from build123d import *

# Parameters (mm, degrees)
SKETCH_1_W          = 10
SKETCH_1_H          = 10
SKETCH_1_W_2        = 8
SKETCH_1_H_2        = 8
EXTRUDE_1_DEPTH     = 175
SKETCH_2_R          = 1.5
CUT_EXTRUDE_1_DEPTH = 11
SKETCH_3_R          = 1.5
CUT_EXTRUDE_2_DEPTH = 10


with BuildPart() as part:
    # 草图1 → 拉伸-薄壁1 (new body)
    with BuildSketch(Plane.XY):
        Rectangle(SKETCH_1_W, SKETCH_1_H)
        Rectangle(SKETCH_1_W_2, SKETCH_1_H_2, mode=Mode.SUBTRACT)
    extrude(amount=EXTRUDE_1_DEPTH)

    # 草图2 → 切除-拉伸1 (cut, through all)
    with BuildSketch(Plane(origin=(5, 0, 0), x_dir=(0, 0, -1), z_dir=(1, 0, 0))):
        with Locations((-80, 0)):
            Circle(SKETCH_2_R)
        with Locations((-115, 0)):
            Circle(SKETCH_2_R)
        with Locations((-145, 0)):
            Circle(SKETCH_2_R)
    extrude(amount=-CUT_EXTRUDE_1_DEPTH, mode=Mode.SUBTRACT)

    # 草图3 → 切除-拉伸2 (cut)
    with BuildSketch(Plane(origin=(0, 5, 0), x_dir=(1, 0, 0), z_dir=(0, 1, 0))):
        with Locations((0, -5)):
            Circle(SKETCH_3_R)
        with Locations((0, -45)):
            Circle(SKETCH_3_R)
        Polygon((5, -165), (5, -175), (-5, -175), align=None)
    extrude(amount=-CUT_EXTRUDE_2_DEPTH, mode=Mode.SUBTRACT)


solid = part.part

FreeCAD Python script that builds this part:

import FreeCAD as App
import Part
import Sketcher
from FreeCAD import Vector
Q = App.Units.Quantity


def add_polygon(sketch, points):
    """Adds a closed chain of lines whose ends are joined by coincident constraints."""
    first, n = sketch.GeometryCount, len(points)
    for a, b in zip(points, points[1:] + points[:1]):
        sketch.addGeometry(Part.LineSegment(App.Vector(*a, 0), App.Vector(*b, 0)), False)
    for i in range(n):
        sketch.addConstraint(Sketcher.Constraint("Coincident", first + i, 2, first + (i + 1) % n, 1))

doc = App.newDocument("Part")
body = doc.addObject("PartDesign::Body", "Body")

# Sketch on XY plane
sketch1 = body.newObject("Sketcher::SketchObject", "Sketch")
sketch1.AttachmentSupport = (doc.getObject("XY_Plane"), [""])
sketch1.MapMode = "FlatFace"
add_polygon(sketch1, [(-5, 5), (-5, -5), (5, -5), (5, 5)])  # lines 0-3
add_polygon(sketch1, [(4, -4), (-4, -4), (-4, 4), (4, 4)])  # lines 4-7
sketch1.addConstraint([
    Sketcher.Constraint("Vertical", 0),
    Sketcher.Constraint("Horizontal", 1),
    Sketcher.Constraint("Vertical", 2),
    Sketcher.Constraint("Horizontal", 3),
    Sketcher.Constraint("Horizontal", 4),
    Sketcher.Constraint("Vertical", 5),
    Sketcher.Constraint("Horizontal", 6),
    Sketcher.Constraint("Vertical", 7),
    Sketcher.Constraint("Symmetric", 0, 2, 2, 2, -1, 1),
    Sketcher.Constraint("Symmetric", 4, 2, 6, 2, -1, 1),
    Sketcher.Constraint("Equal", 3, 0),
    Sketcher.Constraint("Equal", 6, 5),
    Sketcher.Constraint("DistanceX", 1, 1, 1, 2, Q("10 mm")),
    Sketcher.Constraint("DistanceX", 4, 2, 4, 1, Q("8 mm")),
])
pad1 = body.newObject("PartDesign::Pad", "Pad")
pad1.Profile = sketch1
pad1.Length = 175

# Sketch on YZ plane
sketch2 = body.newObject("Sketcher::SketchObject", "Sketch001")
sketch2.AttachmentSupport = (doc.getObject("YZ_Plane"), [""])
sketch2.MapMode = "FlatFace"
sketch2.AttachmentOffset = App.Placement(Vector(0, 0, 5), App.Rotation())
sketch2.addGeometry([
    Part.Circle(Vector(0, 80, 0), Vector(0, 0, 1), 1.5),
    Part.Circle(Vector(0, 115, 0), Vector(0, 0, 1), 1.5),
    Part.Circle(Vector(0, 145, 0), Vector(0, 0, 1), 1.5),
], False)
sketch2.addConstraint([
    Sketcher.Constraint("Equal", 0, 1),
    Sketcher.Constraint("Equal", 1, 2),
    Sketcher.Constraint("PointOnObject", 0, 3, -2),
    Sketcher.Constraint("PointOnObject", 1, 3, -2),
    Sketcher.Constraint("PointOnObject", 2, 3, -2),
    Sketcher.Constraint("Diameter", 0, Q("3 mm")),
    Sketcher.Constraint("DistanceY", -1, 1, 0, 3, Q("80 mm")),
    Sketcher.Constraint("DistanceY", -1, 1, 1, 3, Q("115 mm")),
    Sketcher.Constraint("DistanceY", -1, 1, 2, 3, Q("145 mm")),
])
pocket1 = body.newObject("PartDesign::Pocket", "Pocket")
pocket1.Profile = sketch2
pocket1.Type = "ThroughAll"

# Sketch on XZ plane
sketch3 = body.newObject("Sketcher::SketchObject", "Sketch002")
sketch3.AttachmentSupport = (doc.getObject("XZ_Plane"), [""])
sketch3.MapMode = "FlatFace"
sketch3.AttachmentOffset = App.Placement(Vector(0, 0, -5), App.Rotation())
sketch3.addGeometry(Part.Circle(Vector(0, 5, 0), Vector(0, 0, 1), 1.5), False)  # 0
sketch3.addGeometry(Part.Circle(Vector(0, 45, 0), Vector(0, 0, 1), 1.5), False)  # 1
add_polygon(sketch3, [(5, 175), (5, 165), (-5, 175)])  # lines 2-4
sketch3.addConstraint([
    Sketcher.Constraint("Vertical", 2),
    Sketcher.Constraint("Horizontal", 4),
    Sketcher.Constraint("Equal", 0, 1),
    Sketcher.Constraint("PointOnObject", 0, 3, -2),
    Sketcher.Constraint("PointOnObject", 1, 3, -2),
    Sketcher.Constraint("Equal", 4, 2),
    Sketcher.Constraint("Diameter", 0, Q("3 mm")),
    Sketcher.Constraint("DistanceX", 4, 1, 4, 2, Q("10 mm")),
    Sketcher.Constraint("DistanceY", -1, 1, 0, 3, Q("5 mm")),
    Sketcher.Constraint("DistanceY", -1, 1, 1, 3, Q("45 mm")),
    Sketcher.Constraint("DistanceX", -1, 1, 2, 2, Q("5 mm")),
    Sketcher.Constraint("DistanceY", -1, 1, 2, 2, Q("165 mm")),
])
pocket2 = body.newObject("PartDesign::Pocket", "Pocket001")
pocket2.Profile = sketch3
pocket2.Length = 10
pocket2.Reversed = True

doc.recompute()
